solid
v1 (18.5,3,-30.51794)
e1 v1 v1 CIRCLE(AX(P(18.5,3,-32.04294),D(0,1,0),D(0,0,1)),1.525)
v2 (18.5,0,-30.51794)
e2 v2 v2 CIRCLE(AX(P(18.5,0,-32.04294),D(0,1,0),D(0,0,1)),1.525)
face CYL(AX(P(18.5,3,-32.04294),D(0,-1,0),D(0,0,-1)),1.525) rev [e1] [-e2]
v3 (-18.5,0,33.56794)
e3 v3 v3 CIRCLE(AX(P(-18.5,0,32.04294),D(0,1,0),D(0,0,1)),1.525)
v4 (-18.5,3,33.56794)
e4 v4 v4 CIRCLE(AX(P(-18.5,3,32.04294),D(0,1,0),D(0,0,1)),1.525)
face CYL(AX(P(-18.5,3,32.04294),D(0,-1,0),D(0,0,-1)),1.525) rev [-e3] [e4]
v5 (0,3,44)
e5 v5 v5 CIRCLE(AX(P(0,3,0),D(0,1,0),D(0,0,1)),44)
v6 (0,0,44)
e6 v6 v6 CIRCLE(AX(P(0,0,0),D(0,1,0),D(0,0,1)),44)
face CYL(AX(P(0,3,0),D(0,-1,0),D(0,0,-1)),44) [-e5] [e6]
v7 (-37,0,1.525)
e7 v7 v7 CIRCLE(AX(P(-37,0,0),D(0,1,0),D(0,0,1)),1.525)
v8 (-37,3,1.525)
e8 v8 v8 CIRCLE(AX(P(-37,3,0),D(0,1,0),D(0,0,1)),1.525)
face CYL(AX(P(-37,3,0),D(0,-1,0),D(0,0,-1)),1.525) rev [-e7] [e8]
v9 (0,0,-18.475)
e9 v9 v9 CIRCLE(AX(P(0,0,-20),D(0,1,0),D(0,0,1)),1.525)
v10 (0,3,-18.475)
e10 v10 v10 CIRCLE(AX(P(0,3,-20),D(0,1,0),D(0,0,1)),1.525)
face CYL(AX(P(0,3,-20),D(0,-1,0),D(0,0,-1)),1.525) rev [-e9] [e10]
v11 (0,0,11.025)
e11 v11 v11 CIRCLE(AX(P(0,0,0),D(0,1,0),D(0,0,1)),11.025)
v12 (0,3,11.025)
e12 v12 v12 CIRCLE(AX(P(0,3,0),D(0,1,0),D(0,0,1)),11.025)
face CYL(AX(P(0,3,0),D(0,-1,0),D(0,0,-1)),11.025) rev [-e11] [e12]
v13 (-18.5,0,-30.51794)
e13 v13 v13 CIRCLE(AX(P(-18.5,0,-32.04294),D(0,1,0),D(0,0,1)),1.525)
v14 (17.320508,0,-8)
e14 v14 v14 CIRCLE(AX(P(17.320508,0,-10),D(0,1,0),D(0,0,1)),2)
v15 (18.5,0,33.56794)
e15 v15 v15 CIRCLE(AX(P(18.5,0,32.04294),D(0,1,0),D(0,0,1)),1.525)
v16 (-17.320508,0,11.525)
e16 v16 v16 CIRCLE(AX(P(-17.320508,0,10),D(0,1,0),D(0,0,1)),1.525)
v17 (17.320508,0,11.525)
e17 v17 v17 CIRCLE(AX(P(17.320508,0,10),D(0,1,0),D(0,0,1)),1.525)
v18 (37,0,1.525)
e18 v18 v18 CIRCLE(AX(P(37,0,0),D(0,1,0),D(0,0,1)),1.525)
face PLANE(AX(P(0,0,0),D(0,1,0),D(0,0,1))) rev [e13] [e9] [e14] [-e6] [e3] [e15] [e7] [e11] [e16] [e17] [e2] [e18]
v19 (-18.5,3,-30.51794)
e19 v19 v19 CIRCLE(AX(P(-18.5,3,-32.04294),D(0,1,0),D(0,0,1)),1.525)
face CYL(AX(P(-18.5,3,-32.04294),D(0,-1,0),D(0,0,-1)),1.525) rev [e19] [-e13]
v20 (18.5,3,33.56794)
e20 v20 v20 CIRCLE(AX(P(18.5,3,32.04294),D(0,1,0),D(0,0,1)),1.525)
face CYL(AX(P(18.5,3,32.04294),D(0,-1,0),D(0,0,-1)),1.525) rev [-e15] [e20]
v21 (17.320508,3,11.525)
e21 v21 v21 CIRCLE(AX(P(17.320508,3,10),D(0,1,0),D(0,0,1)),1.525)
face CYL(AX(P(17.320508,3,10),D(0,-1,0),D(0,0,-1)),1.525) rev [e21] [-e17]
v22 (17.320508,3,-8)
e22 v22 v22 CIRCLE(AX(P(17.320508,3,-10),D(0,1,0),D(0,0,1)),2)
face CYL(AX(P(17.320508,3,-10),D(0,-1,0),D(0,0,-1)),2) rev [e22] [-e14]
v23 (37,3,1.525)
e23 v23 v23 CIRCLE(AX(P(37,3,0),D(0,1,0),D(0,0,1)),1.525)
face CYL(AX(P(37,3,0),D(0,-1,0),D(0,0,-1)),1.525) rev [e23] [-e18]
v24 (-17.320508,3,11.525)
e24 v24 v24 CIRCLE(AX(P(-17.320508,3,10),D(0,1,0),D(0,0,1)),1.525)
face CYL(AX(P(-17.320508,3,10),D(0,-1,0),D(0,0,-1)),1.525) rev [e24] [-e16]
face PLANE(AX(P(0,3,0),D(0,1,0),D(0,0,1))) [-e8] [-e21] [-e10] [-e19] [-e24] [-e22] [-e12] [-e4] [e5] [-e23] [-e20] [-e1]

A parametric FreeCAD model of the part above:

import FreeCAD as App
import Part
import Sketcher
Q = App.Units.Quantity

doc = App.newDocument("Part")
body = doc.addObject("PartDesign::Body", "Body")

sketch1 = body.newObject("Sketcher::SketchObject", "Sketch")
sketch1.AttachmentSupport = (doc.getObject("XZ_Plane"), [""])
sketch1.MapMode = "FlatFace"
sketch1.addGeometry(Part.Circle(App.Vector(0, 0, 0), App.Vector(0, 0, 1), 44), False)
sketch1.addGeometry(Part.Circle(App.Vector(-18.5, -32, 0), App.Vector(0, 0, 1), 1.5), False)
sketch1.addGeometry(Part.Circle(App.Vector(-37, 0, 0), App.Vector(0, 0, 1), 1.5), False)
sketch1.addGeometry(Part.Circle(App.Vector(-17.3, 10, 0), App.Vector(0, 0, 1), 1.5), False)
sketch1.addGeometry(Part.Circle(App.Vector(-18.5, 32, 0), App.Vector(0, 0, 1), 1.5), False)
sketch1.addGeometry(Part.Circle(App.Vector(0, -20, 0), App.Vector(0, 0, 1), 1.5), False)
sketch1.addGeometry(Part.Circle(App.Vector(18.5, -32, 0), App.Vector(0, 0, 1), 1.5), False)
sketch1.addGeometry(Part.Circle(App.Vector(17.3, -10, 0), App.Vector(0, 0, 1), 2), False)
sketch1.addGeometry(Part.Circle(App.Vector(37, 0, 0), App.Vector(0, 0, 1), 1.5), False)
sketch1.addGeometry(Part.Circle(App.Vector(0, 0, 0), App.Vector(0, 0, 1), 11), False)
sketch1.addGeometry(Part.Circle(App.Vector(17.3, 10, 0), App.Vector(0, 0, 1), 1.5), False)
sketch1.addGeometry(Part.Circle(App.Vector(18.5, 32, 0), App.Vector(0, 0, 1), 1.5), False)
sketch1.addConstraint(Sketcher.Constraint("Coincident", 0, 3, -1, 1))
sketch1.addConstraint(Sketcher.Constraint("Coincident", 9, 3, -1, 1))
sketch1.addConstraint(Sketcher.Constraint("Equal", 1, 2))
sketch1.addConstraint(Sketcher.Constraint("Equal", 2, 3))
sketch1.addConstraint(Sketcher.Constraint("Equal", 3, 4))
sketch1.addConstraint(Sketcher.Constraint("Equal", 4, 5))
sketch1.addConstraint(Sketcher.Constraint("Equal", 5, 6))
sketch1.addConstraint(Sketcher.Constraint("Equal", 6, 8))
sketch1.addConstraint(Sketcher.Constraint("Equal", 8, 10))
sketch1.addConstraint(Sketcher.Constraint("Equal", 10, 11))
sketch1.addConstraint(Sketcher.Constraint("Symmetric", 4, 3, 6, 3, -1, 1))
sketch1.addConstraint(Sketcher.Constraint("Symmetric", 3, 3, 7, 3, -1, 1))
sketch1.addConstraint(Sketcher.Constraint("Symmetric", 2, 3, 8, 3, -1, 1))
sketch1.addConstraint(Sketcher.Constraint("Symmetric", 1, 3, 11, 3, -1, 1))
sketch1.addConstraint(Sketcher.Constraint("Symmetric", 1, 3, 6, 3, -2))
sketch1.addConstraint(Sketcher.Constraint("Symmetric", 3, 3, 10, 3, -2))
sketch1.addConstraint(Sketcher.Constraint("PointOnObject", 2, 3, -1))
sketch1.addConstraint(Sketcher.Constraint("PointOnObject", 5, 3, -2))
sketch1.addConstraint(Sketcher.Constraint("Diameter", 0, Q("88 mm")))
sketch1.addConstraint(Sketcher.Constraint("Diameter", 7, Q("4 mm")))
sketch1.addConstraint(Sketcher.Constraint("Diameter", 1, Q("3.05 mm")))
sketch1.addConstraint(Sketcher.Constraint("Diameter", 9, Q("22.05 mm")))
sketch1.addConstraint(Sketcher.Constraint("DistanceX", 2, 3, -1, 1, Q("37 mm")))
sketch1.addConstraint(Sketcher.Constraint("DistanceY", -1, 1, 3, 3, Q("10 mm")))
sketch1.addConstraint(Sketcher.Constraint("DistanceY", 5, 3, -1, 1, Q("20 mm")))
sketch1.addConstraint(Sketcher.Constraint("DistanceX", 1, 3, 6, 3, Q("37 mm")))
sketch1.addConstraint(Sketcher.Constraint("DistanceY", 1, 3, -1, 1, Q("32.04294 mm")))
sketch1.addConstraint(Sketcher.Constraint("DistanceX", 3, 3, -1, 1, Q("17.320508 mm")))
pad1 = body.newObject("PartDesign::Pad", "Pad")
pad1.Profile = sketch1
pad1.Length = 3
pad1.Reversed = True

doc.recompute()
